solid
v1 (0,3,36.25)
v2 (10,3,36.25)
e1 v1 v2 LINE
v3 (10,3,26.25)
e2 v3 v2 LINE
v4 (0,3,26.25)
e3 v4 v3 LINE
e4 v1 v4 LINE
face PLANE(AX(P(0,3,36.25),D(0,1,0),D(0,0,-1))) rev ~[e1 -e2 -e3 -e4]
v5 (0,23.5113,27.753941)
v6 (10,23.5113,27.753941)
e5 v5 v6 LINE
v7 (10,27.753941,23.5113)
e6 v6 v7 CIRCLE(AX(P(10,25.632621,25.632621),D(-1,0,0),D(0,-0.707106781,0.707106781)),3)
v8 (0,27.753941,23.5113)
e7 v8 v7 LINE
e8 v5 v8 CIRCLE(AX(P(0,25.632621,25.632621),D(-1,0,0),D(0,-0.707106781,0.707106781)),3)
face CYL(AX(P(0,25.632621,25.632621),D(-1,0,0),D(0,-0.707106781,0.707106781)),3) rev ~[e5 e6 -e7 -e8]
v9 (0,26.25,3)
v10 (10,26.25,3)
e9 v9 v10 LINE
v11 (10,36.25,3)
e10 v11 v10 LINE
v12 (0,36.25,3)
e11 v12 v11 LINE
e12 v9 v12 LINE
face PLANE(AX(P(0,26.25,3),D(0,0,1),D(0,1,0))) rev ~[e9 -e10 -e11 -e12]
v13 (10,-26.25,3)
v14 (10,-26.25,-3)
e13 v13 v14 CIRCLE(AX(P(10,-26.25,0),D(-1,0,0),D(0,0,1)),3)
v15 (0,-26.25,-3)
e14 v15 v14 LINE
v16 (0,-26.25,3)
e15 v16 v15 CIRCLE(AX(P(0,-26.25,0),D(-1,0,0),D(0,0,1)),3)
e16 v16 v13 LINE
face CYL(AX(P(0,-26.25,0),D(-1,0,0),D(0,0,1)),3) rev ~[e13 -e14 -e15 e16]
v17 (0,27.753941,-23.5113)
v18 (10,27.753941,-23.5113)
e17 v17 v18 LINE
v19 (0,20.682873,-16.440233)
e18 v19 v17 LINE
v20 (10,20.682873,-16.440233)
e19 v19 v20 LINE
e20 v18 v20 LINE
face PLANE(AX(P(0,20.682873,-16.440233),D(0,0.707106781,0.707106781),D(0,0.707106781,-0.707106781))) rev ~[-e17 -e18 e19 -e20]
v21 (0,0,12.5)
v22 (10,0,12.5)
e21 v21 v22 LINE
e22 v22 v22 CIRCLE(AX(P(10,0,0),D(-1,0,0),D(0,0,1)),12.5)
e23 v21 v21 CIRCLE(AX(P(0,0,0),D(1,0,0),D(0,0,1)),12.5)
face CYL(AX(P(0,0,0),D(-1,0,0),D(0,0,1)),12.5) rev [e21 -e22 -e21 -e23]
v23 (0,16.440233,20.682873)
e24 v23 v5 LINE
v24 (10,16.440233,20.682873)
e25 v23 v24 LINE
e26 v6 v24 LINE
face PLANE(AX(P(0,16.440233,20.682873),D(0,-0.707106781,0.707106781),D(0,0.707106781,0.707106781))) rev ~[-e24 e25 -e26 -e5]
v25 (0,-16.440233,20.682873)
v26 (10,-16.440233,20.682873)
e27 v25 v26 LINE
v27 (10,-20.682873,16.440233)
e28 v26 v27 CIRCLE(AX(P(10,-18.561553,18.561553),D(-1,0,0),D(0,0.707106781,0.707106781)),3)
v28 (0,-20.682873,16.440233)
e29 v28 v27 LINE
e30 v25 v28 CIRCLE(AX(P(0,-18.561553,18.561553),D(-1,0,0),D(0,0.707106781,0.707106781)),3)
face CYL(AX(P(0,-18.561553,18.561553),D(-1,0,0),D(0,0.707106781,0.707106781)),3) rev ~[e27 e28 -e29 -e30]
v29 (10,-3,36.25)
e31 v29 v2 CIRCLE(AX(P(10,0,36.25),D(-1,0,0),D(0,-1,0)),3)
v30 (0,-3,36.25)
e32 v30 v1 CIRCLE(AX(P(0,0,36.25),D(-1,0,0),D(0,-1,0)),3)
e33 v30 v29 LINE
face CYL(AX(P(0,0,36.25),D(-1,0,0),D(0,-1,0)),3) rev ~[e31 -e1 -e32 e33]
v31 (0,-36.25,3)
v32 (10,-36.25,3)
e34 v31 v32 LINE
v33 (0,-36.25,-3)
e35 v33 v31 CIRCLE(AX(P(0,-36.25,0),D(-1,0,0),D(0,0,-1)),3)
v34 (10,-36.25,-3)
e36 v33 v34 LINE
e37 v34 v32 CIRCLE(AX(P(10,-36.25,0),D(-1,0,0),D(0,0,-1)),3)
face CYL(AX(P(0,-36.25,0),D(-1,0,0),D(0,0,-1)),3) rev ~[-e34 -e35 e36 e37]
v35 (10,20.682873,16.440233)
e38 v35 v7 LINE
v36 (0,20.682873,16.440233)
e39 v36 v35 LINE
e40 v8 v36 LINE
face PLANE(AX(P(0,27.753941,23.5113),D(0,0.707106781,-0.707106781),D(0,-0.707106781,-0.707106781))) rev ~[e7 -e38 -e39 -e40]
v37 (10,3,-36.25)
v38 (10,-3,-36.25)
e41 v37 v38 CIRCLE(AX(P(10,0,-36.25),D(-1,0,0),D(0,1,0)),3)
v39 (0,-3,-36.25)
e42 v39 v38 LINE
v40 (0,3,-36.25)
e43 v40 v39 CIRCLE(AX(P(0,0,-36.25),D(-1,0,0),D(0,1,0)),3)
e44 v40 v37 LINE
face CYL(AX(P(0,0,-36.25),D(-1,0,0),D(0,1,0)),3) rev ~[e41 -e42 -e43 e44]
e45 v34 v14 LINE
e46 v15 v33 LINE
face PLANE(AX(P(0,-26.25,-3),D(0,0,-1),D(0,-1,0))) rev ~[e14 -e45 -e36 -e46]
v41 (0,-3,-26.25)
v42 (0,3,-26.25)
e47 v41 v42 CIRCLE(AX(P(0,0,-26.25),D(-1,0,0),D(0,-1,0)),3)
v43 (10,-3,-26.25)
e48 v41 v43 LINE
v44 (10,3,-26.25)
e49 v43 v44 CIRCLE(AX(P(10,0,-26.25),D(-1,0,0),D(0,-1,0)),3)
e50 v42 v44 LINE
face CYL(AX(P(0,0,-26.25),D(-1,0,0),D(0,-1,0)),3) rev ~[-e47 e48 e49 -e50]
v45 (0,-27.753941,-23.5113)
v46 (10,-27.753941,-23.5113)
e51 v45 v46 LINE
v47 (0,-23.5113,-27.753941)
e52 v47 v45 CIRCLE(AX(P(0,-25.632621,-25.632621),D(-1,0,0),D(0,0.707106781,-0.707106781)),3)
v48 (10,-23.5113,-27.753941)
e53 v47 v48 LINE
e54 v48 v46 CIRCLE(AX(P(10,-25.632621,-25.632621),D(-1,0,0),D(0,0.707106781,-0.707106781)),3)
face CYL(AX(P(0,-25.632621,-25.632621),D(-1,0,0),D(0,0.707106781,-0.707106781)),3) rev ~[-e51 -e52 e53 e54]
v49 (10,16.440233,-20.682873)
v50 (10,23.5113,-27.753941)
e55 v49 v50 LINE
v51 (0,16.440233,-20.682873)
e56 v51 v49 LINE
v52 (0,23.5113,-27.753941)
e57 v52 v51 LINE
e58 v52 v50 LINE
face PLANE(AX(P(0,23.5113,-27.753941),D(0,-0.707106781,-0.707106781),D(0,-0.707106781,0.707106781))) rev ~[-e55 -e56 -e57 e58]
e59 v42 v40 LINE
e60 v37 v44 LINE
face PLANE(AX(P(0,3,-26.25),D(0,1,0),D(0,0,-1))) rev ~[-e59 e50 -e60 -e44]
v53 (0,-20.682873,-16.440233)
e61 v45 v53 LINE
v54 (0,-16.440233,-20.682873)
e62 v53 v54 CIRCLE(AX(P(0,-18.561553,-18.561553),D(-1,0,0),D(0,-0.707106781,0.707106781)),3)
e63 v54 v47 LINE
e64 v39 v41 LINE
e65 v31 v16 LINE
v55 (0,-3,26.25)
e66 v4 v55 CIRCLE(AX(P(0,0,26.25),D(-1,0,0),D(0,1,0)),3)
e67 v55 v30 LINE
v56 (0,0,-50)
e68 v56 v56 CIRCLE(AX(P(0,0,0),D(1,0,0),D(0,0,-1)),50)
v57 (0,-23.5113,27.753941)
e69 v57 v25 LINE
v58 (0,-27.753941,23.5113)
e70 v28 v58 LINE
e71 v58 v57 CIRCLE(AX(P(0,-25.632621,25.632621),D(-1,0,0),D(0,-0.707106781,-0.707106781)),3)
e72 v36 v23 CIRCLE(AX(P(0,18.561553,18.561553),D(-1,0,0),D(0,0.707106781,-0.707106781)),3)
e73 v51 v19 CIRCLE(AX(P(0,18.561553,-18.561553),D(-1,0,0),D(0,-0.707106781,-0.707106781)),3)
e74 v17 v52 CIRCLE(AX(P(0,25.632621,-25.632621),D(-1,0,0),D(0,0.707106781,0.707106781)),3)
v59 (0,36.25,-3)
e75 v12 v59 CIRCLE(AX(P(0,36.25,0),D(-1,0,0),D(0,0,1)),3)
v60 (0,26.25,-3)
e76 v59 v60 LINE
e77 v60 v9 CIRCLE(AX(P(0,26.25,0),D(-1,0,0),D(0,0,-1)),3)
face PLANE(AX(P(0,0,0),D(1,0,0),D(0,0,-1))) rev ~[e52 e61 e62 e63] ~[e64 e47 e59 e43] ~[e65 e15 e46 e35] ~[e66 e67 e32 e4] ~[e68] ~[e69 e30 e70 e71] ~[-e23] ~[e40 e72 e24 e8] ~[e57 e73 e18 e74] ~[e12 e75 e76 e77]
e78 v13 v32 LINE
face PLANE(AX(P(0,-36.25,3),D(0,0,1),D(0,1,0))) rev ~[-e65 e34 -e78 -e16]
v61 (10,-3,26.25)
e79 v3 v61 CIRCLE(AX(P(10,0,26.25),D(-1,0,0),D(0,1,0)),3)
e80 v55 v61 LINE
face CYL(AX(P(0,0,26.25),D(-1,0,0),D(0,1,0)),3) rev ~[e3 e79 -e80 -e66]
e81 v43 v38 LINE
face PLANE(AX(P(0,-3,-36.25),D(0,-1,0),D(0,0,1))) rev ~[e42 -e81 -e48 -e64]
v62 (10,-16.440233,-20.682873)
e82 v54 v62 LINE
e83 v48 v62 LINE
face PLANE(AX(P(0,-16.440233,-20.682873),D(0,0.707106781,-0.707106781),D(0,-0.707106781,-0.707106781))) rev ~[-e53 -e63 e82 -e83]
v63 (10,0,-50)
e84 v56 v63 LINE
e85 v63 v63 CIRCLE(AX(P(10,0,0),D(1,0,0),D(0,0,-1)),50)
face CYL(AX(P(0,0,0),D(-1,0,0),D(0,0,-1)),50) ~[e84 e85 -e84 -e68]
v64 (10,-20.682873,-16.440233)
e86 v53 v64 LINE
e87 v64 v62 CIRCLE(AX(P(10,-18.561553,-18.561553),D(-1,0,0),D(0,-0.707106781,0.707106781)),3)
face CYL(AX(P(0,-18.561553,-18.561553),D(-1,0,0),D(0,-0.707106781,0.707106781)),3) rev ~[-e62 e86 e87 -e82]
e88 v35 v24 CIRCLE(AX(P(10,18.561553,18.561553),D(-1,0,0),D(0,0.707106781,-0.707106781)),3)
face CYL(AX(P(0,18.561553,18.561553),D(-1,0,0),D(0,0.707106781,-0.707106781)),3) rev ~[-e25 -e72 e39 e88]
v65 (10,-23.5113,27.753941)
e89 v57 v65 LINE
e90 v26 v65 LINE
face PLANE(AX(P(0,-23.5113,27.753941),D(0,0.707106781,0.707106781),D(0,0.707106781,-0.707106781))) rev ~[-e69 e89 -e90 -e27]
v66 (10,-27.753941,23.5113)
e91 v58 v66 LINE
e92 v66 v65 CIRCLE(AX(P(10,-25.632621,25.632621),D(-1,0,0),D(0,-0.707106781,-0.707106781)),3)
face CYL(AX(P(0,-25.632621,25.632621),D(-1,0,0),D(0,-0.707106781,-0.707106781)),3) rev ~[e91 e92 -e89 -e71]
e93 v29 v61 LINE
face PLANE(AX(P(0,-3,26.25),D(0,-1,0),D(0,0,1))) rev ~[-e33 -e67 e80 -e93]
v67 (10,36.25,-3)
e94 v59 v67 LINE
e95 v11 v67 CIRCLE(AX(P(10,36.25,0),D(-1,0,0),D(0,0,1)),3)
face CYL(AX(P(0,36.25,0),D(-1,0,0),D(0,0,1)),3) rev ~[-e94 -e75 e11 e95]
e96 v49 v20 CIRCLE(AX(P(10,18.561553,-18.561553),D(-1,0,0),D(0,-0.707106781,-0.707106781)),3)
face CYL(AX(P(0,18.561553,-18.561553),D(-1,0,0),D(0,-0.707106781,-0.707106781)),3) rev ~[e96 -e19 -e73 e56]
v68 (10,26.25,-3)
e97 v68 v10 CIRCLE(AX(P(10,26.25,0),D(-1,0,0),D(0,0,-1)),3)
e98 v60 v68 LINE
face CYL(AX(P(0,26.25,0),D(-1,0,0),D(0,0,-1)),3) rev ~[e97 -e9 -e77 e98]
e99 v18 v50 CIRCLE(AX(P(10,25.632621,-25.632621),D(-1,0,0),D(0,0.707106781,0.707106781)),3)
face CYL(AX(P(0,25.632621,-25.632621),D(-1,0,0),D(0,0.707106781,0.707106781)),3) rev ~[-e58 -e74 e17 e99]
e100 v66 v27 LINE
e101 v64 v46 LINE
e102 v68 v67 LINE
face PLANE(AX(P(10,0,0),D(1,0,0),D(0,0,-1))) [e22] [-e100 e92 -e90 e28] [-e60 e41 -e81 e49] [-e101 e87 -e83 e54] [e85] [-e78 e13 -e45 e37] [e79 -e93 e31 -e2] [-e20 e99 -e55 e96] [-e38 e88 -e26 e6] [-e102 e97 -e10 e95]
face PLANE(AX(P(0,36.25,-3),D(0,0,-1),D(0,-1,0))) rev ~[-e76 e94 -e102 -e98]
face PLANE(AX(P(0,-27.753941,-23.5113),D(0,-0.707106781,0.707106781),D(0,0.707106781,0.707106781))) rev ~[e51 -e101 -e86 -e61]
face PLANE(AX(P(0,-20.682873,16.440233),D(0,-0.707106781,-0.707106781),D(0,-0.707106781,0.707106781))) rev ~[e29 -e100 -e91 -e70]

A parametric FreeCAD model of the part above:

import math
import FreeCAD as App
import Part
import Sketcher
from FreeCAD import Vector
Q = App.Units.Quantity


def add_polygon(sketch, points):
    """Adds a closed chain of lines whose ends are joined by coincident constraints."""
    first, n = sketch.GeometryCount, len(points)
    for a, b in zip(points, points[1:] + points[:1]):
        sketch.addGeometry(Part.LineSegment(App.Vector(*a, 0), App.Vector(*b, 0)), False)
    for i in range(n):
        sketch.addConstraint(Sketcher.Constraint("Coincident", first + i, 2, first + (i + 1) % n, 1))

doc = App.newDocument("Part")
body = doc.addObject("PartDesign::Body", "Body")

sketch1 = doc.addObject("Sketcher::SketchObject", "Sketch")
body.addObject(sketch1)
sketch1.AttachmentSupport = (doc.YZ_Plane, [""])
sketch1.MapMode = "FlatFace"
sketch1.addGeometry(Part.Circle(Vector(0, 0, 0), Vector(0, 0, 1), 50), False)
sketch1.addConstraint([
    Sketcher.Constraint("Coincident", 0, 3, -1, 1),
    Sketcher.Constraint("Diameter", 0, Q("100 mm")),
])
pad1 = doc.addObject("PartDesign::Pad", "Pad")
body.addObject(pad1)
pad1.Profile = sketch1
pad1.Length = 10

sketch2 = doc.addObject("Sketcher::SketchObject", "Sketch001")
body.addObject(sketch2)
sketch2.AttachmentSupport = (doc.YZ_Plane, [""])
sketch2.MapMode = "FlatFace"
add_polygon(sketch2, [(65.2, 65.2), (-65.2, 65.2), (-65.2, -65.2), (65.2, -65.2)])
sketch2.addGeometry(Part.Circle(Vector(0, 0, 0), Vector(0, 0, 1), 50), False)
sketch2.addGeometry(Part.Circle(Vector(0, 0, 0), Vector(0, 0, 1), 12.5), False)
sketch2.addGeometry(Part.LineSegment(Vector(26.2, -3, 0), Vector(36.2, -3, 0)), False)
sketch2.addGeometry(Part.ArcOfCircle(Part.Circle(Vector(36.2, 0, 0), Vector(0, 0, 1), 3), math.radians(-90), math.radians(90)), False)
sketch2.addGeometry(Part.LineSegment(Vector(36.2, 3, 0), Vector(26.2, 3, 0)), False)
sketch2.addGeometry(Part.ArcOfCircle(Part.Circle(Vector(26.2, 0, 0), Vector(0, 0, 1), 3), math.radians(90), math.radians(270)), False)
sketch2.addGeometry(Part.LineSegment(Vector(16.4, -20.7, 0), Vector(23.5, -27.8, 0)), False)
sketch2.addGeometry(Part.ArcOfCircle(Part.Circle(Vector(25.6, -25.6, 0), Vector(0, 0, 1), 3), math.radians(-135), math.radians(45)), False)
sketch2.addGeometry(Part.LineSegment(Vector(27.8, -23.5, 0), Vector(20.7, -16.4, 0)), False)
sketch2.addGeometry(Part.ArcOfCircle(Part.Circle(Vector(18.6, -18.6, 0), Vector(0, 0, 1), 3), math.radians(45), math.radians(225)), False)
sketch2.addGeometry(Part.LineSegment(Vector(-3, -26.2, 0), Vector(-3, -36.2, 0)), False)
sketch2.addGeometry(Part.ArcOfCircle(Part.Circle(Vector(0, -36.2, 0), Vector(0, 0, 1), 3), math.radians(180), math.radians(360)), False)
sketch2.addGeometry(Part.LineSegment(Vector(3, -36.2, 0), Vector(3, -26.2, 0)), False)
sketch2.addGeometry(Part.ArcOfCircle(Part.Circle(Vector(0, -26.2, 0), Vector(0, 0, 1), 3), math.radians(0), math.radians(180)), False)
sketch2.addGeometry(Part.LineSegment(Vector(-20.7, -16.4, 0), Vector(-27.8, -23.5, 0)), False)
sketch2.addGeometry(Part.ArcOfCircle(Part.Circle(Vector(-25.6, -25.6, 0), Vector(0, 0, 1), 3), math.radians(135), math.radians(315)), False)
sketch2.addGeometry(Part.LineSegment(Vector(-23.5, -27.8, 0), Vector(-16.4, -20.7, 0)), False)
sketch2.addGeometry(Part.ArcOfCircle(Part.Circle(Vector(-18.6, -18.6, 0), Vector(0, 0, 1), 3), math.radians(-45), math.radians(135)), False)
sketch2.addGeometry(Part.LineSegment(Vector(-26.2, 3, 0), Vector(-36.2, 3, 0)), False)
sketch2.addGeometry(Part.ArcOfCircle(Part.Circle(Vector(-36.2, 0, 0), Vector(0, 0, 1), 3), math.radians(90), math.radians(270)), False)
sketch2.addGeometry(Part.LineSegment(Vector(-36.2, -3, 0), Vector(-26.2, -3, 0)), False)
sketch2.addGeometry(Part.ArcOfCircle(Part.Circle(Vector(-26.2, 0, 0), Vector(0, 0, 1), 3), math.radians(-90), math.radians(90)), False)
sketch2.addGeometry(Part.LineSegment(Vector(-16.4, 20.7, 0), Vector(-23.5, 27.8, 0)), False)
sketch2.addGeometry(Part.ArcOfCircle(Part.Circle(Vector(-25.6, 25.6, 0), Vector(0, 0, 1), 3), math.radians(45), math.radians(225)), False)
sketch2.addGeometry(Part.LineSegment(Vector(-27.8, 23.5, 0), Vector(-20.7, 16.4, 0)), False)
sketch2.addGeometry(Part.ArcOfCircle(Part.Circle(Vector(-18.6, 18.6, 0), Vector(0, 0, 1), 3), math.radians(-135), math.radians(45)), False)
sketch2.addGeometry(Part.LineSegment(Vector(3, 26.2, 0), Vector(3, 36.2, 0)), False)
sketch2.addGeometry(Part.ArcOfCircle(Part.Circle(Vector(0, 36.2, 0), Vector(0, 0, 1), 3), math.radians(0), math.radians(180)), False)
sketch2.addGeometry(Part.LineSegment(Vector(-3, 36.2, 0), Vector(-3, 26.2, 0)), False)
sketch2.addGeometry(Part.ArcOfCircle(Part.Circle(Vector(0, 26.2, 0), Vector(0, 0, 1), 3), math.radians(180), math.radians(360)), False)
sketch2.addGeometry(Part.LineSegment(Vector(20.7, 16.4, 0), Vector(27.8, 23.5, 0)), False)
sketch2.addGeometry(Part.ArcOfCircle(Part.Circle(Vector(25.6, 25.6, 0), Vector(0, 0, 1), 3), math.radians(-45), math.radians(135)), False)
sketch2.addGeometry(Part.LineSegment(Vector(23.5, 27.8, 0), Vector(16.4, 20.7, 0)), False)
sketch2.addGeometry(Part.ArcOfCircle(Part.Circle(Vector(18.6, 18.6, 0), Vector(0, 0, 1), 3), math.radians(135), math.radians(315)), False)
sketch2.addConstraint([
    Sketcher.Constraint("Tangent", 6, 2, 7, 1),
    Sketcher.Constraint("Tangent", 7, 2, 8, 1),
    Sketcher.Constraint("Tangent", 8, 2, 9, 1),
    Sketcher.Constraint("Tangent", 9, 2, 6, 1),
    Sketcher.Constraint("Tangent", 10, 2, 11, 1),
    Sketcher.Constraint("Tangent", 11, 2, 12, 1),
    Sketcher.Constraint("Tangent", 12, 2, 13, 1),
    Sketcher.Constraint("Tangent", 13, 2, 10, 1),
    Sketcher.Constraint("Tangent", 14, 2, 15, 1),
    Sketcher.Constraint("Tangent", 15, 2, 16, 1),
    Sketcher.Constraint("Tangent", 16, 2, 17, 1),
    Sketcher.Constraint("Tangent", 17, 2, 14, 1),
    Sketcher.Constraint("Tangent", 18, 2, 19, 1),
    Sketcher.Constraint("Tangent", 19, 2, 20, 1),
    Sketcher.Constraint("Tangent", 20, 2, 21, 1),
    Sketcher.Constraint("Tangent", 21, 2, 18, 1),
    Sketcher.Constraint("Tangent", 22, 2, 23, 1),
    Sketcher.Constraint("Tangent", 23, 2, 24, 1),
    Sketcher.Constraint("Tangent", 24, 2, 25, 1),
    Sketcher.Constraint("Tangent", 25, 2, 22, 1),
    Sketcher.Constraint("Tangent", 26, 2, 27, 1),
    Sketcher.Constraint("Tangent", 27, 2, 28, 1),
    Sketcher.Constraint("Tangent", 28, 2, 29, 1),
    Sketcher.Constraint("Tangent", 29, 2, 26, 1),
    Sketcher.Constraint("Tangent", 30, 2, 31, 1),
    Sketcher.Constraint("Tangent", 31, 2, 32, 1),
    Sketcher.Constraint("Tangent", 32, 2, 33, 1),
    Sketcher.Constraint("Tangent", 33, 2, 30, 1),
    Sketcher.Constraint("Tangent", 34, 2, 35, 1),
    Sketcher.Constraint("Tangent", 35, 2, 36, 1),
    Sketcher.Constraint("Tangent", 36, 2, 37, 1),
    Sketcher.Constraint("Tangent", 37, 2, 34, 1),
    Sketcher.Constraint("Horizontal", 0),
    Sketcher.Constraint("Vertical", 1),
    Sketcher.Constraint("Horizontal", 2),
    Sketcher.Constraint("Vertical", 3),
    Sketcher.Constraint("Horizontal", 6),
    Sketcher.Constraint("Horizontal", 8),
    Sketcher.Constraint("Vertical", 14),
    Sketcher.Constraint("Vertical", 16),
    Sketcher.Constraint("Horizontal", 22),
    Sketcher.Constraint("Horizontal", 24),
    Sketcher.Constraint("Vertical", 30),
    Sketcher.Constraint("Vertical", 32),
    Sketcher.Constraint("Coincident", 4, 3, -1, 1),
    Sketcher.Constraint("Coincident", 5, 3, -1, 1),
    Sketcher.Constraint("Equal", 9, 11),
    Sketcher.Constraint("Equal", 11, 13),
    Sketcher.Constraint("Equal", 13, 15),
    Sketcher.Constraint("Equal", 17, 19),
    Sketcher.Constraint("Equal", 19, 21),
    Sketcher.Constraint("Equal", 21, 23),
    Sketcher.Constraint("Equal", 25, 27),
    Sketcher.Constraint("Equal", 27, 29),
    Sketcher.Constraint("Equal", 29, 31),
    Sketcher.Constraint("Equal", 33, 35),
    Sketcher.Constraint("Equal", 35, 37),
    Sketcher.Constraint("Symmetric", 7, 3, 23, 3, -1, 1),
    Sketcher.Constraint("Symmetric", 11, 3, 27, 3, -1, 1),
    Sketcher.Constraint("Symmetric", 13, 3, 29, 3, -1, 1),
    Sketcher.Constraint("Symmetric", 15, 3, 31, 3, -1, 1),
    Sketcher.Constraint("Symmetric", 19, 3, 35, 3, -1, 1),
    Sketcher.Constraint("Symmetric", 21, 3, 37, 3, -1, 1),
    Sketcher.Constraint("Symmetric", 0, 2, 2, 2, -1, 1),
    Sketcher.Constraint("Symmetric", 11, 3, 19, 3, -2),
    Sketcher.Constraint("Symmetric", 13, 3, 21, 3, -2),
    Sketcher.Constraint("Symmetric", 9, 3, 25, 3, -2),
    Sketcher.Constraint("Symmetric", 17, 3, 33, 3, -1),
    Sketcher.Constraint("Perpendicular", 12, 18),
    Sketcher.Constraint("Equal", 2, 1),
    Sketcher.Constraint("Equal", 24, 14),
    Sketcher.Constraint("Diameter", 4, Q("100 mm")),
    Sketcher.Constraint("Diameter", 5, Q("25 mm")),
    Sketcher.Constraint("Radius", 7, Q("3 mm")),
    Sketcher.Constraint("DistanceX", 6, 1, 6, 2, Q("10 mm")),
    Sketcher.Constraint("Distance", 10, Q("10 mm")),
    Sketcher.Constraint("DistanceX", 0, 2, 0, 1, Q("130.354 mm")),
    Sketcher.Constraint("DistanceX", -1, 1, 7, 3, Q("36.25 mm")),
    Sketcher.Constraint("DistanceY", 15, 3, -1, 1, Q("36.25 mm")),
    Sketcher.Constraint("DistanceX", -1, 1, 10, 2, Q("23.5113 mm")),
    Sketcher.Constraint("DistanceY", 11, 2, -1, 1, Q("23.5113 mm")),
])
pocket1 = doc.addObject("PartDesign::Pocket", "Pocket")
body.addObject(pocket1)
pocket1.Profile = sketch2
pocket1.Length = 13
pocket1.Reversed = True

doc.recompute()
